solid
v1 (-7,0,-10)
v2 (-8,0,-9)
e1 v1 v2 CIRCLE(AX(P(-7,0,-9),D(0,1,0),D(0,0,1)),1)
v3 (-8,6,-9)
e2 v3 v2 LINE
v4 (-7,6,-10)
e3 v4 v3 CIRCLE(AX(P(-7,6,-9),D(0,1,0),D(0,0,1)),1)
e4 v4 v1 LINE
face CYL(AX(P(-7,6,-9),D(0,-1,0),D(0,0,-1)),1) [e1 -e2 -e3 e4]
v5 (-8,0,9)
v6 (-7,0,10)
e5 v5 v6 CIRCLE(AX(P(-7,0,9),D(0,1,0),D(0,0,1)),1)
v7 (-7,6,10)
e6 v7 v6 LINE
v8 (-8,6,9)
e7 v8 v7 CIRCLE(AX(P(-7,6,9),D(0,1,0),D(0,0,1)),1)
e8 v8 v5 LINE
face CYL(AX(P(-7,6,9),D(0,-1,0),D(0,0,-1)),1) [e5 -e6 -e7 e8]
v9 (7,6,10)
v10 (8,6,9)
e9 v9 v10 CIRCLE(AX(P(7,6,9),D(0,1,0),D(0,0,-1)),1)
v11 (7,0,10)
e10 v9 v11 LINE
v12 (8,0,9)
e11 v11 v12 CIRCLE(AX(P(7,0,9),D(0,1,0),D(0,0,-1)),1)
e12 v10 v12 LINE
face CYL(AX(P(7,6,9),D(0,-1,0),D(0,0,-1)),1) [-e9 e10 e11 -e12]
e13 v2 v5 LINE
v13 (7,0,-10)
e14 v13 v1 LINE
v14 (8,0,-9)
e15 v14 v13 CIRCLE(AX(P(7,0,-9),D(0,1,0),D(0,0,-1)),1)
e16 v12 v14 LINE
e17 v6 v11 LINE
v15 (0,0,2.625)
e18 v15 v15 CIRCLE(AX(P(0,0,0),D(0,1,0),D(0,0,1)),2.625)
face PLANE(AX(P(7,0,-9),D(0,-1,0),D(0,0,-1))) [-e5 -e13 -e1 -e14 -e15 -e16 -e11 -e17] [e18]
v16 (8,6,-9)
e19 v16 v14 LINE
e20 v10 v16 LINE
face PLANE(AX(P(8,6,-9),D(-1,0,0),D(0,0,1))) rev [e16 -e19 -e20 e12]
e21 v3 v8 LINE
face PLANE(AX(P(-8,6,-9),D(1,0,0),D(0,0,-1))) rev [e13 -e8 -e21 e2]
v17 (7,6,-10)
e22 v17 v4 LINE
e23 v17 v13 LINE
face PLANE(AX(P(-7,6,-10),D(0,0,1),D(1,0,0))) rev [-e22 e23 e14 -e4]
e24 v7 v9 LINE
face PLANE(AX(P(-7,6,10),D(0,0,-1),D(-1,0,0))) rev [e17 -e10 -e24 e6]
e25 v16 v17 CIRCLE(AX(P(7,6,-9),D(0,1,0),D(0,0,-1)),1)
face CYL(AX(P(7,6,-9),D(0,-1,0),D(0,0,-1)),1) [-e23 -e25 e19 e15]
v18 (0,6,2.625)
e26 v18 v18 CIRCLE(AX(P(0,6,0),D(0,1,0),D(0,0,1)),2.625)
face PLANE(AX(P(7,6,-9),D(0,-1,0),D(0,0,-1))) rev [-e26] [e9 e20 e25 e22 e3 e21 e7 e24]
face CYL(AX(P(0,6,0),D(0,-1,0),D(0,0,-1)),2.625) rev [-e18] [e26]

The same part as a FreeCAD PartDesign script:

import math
import FreeCAD as App
import Part
import Sketcher
Q = App.Units.Quantity

doc = App.newDocument("Part")
body = doc.addObject("PartDesign::Body", "Body")

# Sketch on XZ plane
sketch1 = body.newObject("Sketcher::SketchObject", "Sketch")
sketch1.AttachmentSupport = (doc.getObject("XZ_Plane"), [""])
sketch1.MapMode = "FlatFace"
sketch1.addGeometry([
    Part.LineSegment(App.Vector(7, -10, 0), App.Vector(-7, -10, 0)),  # 0
    Part.ArcOfCircle(Part.Circle(App.Vector(-7, -9, 0), App.Vector(0, 0, 1), 1), math.radians(-180), math.radians(-90)),  # 1
    Part.LineSegment(App.Vector(-8, -9, 0), App.Vector(-8, 9, 0)),  # 2
    Part.ArcOfCircle(Part.Circle(App.Vector(-7, 9, 0), App.Vector(0, 0, 1), 1), math.radians(90), math.radians(180)),  # 3
    Part.LineSegment(App.Vector(-7, 10, 0), App.Vector(7, 10, 0)),  # 4
    Part.ArcOfCircle(Part.Circle(App.Vector(7, 9, 0), App.Vector(0, 0, 1), 1), math.radians(0), math.radians(90)),  # 5
    Part.LineSegment(App.Vector(8, 9, 0), App.Vector(8, -9, 0)),  # 6
    Part.ArcOfCircle(Part.Circle(App.Vector(7, -9, 0), App.Vector(0, 0, 1), 1), math.radians(-90), math.radians(0)),  # 7
    Part.Circle(App.Vector(0, 0, 0), App.Vector(0, 0, 1), 2.6),  # 8
], False)
sketch1.addConstraint([
    Sketcher.Constraint("Tangent", 0, 2, 1, 2),
    Sketcher.Constraint("Tangent", 1, 1, 2, 1),
    Sketcher.Constraint("Tangent", 2, 2, 3, 2),
    Sketcher.Constraint("Tangent", 3, 1, 4, 1),
    Sketcher.Constraint("Tangent", 4, 2, 5, 2),
    Sketcher.Constraint("Tangent", 5, 1, 6, 1),
    Sketcher.Constraint("Tangent", 6, 2, 7, 2),
    Sketcher.Constraint("Tangent", 7, 1, 0, 1),
    Sketcher.Constraint("Horizontal", 0),
    Sketcher.Constraint("Vertical", 2),
    Sketcher.Constraint("Horizontal", 4),
    Sketcher.Constraint("Vertical", 6),
    Sketcher.Constraint("Coincident", 8, 3, -1, 1),
    Sketcher.Constraint("Equal", 1, 3),
    Sketcher.Constraint("Equal", 3, 5),
    Sketcher.Constraint("Equal", 5, 7),
    Sketcher.Constraint("Symmetric", 1, 3, 5, 3, -1, 1),
    Sketcher.Constraint("Radius", 1, Q("1 mm")),
    Sketcher.Constraint("Diameter", 8, Q("5.25 mm")),
    Sketcher.Constraint("DistanceX", 0, 2, 0, 1, Q("14 mm")),
    Sketcher.Constraint("DistanceY", 2, 1, 2, 2, Q("18 mm")),
])
pad1 = body.newObject("PartDesign::Pad", "Pad")
pad1.Profile = sketch1
pad1.Length = 6
pad1.Reversed = True

doc.recompute()
